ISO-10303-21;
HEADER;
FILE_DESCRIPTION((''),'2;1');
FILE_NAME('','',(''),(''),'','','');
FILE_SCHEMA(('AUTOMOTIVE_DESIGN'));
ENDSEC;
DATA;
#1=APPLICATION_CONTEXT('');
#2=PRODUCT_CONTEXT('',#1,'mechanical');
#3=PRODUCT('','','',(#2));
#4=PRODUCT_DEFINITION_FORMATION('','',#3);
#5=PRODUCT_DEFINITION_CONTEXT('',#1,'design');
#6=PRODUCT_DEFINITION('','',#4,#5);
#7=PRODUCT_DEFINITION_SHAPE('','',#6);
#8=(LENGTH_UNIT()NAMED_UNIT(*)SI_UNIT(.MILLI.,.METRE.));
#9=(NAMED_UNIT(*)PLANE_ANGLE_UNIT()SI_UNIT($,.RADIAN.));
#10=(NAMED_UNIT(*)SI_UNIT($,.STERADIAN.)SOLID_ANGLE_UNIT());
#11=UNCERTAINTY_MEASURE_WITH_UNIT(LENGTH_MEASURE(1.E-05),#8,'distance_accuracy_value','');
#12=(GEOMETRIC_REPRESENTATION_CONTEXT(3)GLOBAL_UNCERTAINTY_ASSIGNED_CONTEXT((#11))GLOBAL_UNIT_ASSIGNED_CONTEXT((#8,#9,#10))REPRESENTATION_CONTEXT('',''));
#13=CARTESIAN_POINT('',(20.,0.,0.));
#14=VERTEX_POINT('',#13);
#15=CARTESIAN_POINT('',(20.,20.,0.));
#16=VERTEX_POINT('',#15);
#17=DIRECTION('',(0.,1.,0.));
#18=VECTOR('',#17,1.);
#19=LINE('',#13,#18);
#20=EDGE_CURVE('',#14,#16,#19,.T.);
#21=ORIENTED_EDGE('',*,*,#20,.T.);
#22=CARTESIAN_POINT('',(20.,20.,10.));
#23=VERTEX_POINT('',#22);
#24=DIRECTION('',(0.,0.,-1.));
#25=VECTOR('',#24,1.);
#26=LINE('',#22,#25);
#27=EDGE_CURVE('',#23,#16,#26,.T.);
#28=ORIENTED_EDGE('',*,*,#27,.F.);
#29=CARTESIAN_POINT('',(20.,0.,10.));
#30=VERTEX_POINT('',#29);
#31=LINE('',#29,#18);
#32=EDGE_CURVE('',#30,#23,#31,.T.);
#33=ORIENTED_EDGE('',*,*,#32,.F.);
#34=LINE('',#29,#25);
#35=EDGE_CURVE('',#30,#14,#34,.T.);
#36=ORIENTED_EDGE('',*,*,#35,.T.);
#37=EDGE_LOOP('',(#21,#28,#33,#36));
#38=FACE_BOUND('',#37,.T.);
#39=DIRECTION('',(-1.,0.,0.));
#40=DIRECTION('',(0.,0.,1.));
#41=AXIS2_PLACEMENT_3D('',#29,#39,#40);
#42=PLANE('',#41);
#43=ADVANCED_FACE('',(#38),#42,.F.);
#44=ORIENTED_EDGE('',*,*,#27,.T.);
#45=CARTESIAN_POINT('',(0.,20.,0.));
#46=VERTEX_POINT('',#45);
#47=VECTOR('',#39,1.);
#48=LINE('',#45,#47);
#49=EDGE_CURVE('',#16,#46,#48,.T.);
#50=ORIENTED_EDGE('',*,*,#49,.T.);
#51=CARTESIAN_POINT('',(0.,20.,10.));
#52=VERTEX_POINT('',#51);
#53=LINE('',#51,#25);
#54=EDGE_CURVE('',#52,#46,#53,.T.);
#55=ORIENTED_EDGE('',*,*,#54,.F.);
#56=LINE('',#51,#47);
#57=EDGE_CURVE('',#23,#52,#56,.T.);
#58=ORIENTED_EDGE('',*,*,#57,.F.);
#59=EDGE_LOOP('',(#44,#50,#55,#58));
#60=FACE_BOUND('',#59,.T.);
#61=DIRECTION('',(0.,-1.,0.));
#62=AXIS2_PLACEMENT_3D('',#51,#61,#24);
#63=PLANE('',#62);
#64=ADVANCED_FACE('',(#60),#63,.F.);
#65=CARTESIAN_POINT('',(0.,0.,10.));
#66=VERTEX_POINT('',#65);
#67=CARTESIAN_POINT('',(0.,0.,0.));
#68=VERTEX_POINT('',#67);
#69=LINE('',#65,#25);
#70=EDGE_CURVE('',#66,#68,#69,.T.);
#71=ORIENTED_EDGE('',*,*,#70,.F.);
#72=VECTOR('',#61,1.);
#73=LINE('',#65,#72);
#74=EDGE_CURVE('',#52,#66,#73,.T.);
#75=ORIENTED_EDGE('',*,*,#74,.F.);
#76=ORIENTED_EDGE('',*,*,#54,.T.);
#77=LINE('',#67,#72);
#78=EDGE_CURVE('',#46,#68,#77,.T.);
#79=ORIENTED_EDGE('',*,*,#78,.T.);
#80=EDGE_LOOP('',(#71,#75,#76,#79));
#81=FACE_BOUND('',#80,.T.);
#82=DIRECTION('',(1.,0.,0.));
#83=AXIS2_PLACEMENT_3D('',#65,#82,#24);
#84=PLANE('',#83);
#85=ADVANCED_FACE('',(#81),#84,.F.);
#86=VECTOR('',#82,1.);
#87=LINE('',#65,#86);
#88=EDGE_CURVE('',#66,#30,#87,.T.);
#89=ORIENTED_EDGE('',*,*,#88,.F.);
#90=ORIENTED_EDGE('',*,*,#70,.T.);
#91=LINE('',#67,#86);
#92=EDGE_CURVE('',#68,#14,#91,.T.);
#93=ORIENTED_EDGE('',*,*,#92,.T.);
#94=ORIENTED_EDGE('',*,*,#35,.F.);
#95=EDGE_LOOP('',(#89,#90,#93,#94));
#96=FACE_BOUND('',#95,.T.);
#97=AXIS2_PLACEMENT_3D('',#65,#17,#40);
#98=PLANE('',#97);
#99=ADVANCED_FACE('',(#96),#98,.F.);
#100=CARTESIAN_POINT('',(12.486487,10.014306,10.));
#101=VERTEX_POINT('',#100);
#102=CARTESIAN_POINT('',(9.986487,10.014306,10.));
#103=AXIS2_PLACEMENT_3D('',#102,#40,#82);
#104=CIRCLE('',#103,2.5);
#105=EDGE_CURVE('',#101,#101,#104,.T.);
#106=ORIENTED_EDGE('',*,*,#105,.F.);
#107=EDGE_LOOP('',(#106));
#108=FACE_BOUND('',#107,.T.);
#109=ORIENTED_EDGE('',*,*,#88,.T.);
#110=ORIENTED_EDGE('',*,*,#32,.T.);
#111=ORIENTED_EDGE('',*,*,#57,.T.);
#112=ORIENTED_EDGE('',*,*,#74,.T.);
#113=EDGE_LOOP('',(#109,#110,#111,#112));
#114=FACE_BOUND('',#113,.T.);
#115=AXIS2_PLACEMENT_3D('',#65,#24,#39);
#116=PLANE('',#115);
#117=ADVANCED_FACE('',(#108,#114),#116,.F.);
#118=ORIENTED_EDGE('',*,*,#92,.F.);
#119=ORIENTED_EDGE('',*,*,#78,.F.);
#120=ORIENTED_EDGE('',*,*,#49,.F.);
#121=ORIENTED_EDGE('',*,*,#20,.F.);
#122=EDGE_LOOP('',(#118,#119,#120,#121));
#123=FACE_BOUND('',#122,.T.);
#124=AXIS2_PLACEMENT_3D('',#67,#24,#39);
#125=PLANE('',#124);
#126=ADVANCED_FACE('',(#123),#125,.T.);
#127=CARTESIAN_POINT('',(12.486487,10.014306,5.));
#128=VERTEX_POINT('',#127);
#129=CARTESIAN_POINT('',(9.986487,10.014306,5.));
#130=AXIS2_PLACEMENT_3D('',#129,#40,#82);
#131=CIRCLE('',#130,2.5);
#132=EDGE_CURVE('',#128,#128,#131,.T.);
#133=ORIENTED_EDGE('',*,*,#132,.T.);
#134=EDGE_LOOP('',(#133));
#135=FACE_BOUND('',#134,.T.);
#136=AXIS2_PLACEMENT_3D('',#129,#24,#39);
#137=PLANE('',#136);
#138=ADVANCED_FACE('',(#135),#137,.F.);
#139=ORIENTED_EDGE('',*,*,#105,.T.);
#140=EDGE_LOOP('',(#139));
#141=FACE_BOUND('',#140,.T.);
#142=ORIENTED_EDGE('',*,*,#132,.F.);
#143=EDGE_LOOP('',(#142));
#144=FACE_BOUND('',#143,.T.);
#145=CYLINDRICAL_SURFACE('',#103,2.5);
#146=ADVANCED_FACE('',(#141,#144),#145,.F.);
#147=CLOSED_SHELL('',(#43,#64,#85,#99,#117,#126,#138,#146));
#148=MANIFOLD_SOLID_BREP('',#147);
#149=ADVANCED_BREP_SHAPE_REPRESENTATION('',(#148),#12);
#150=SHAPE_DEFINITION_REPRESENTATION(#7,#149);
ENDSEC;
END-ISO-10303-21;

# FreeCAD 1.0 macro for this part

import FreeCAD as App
import Part
import Sketcher

V = App.Vector
Q = App.Units.Quantity

doc = App.newDocument("Part")
body = doc.addObject("PartDesign::Body", "Body")

# Sketch on XY plane
sketch1 = body.newObject("Sketcher::SketchObject", "Sketch")
sketch1.AttachmentSupport = (doc.getObject("XY_Plane"), [""])
sketch1.MapMode = "FlatFace"
sketch1.addGeometry([
    Part.LineSegment(V(0, 20, 0), V(0, 0, 0)),
    Part.LineSegment(V(0, 0, 0), V(20, 0, 0)),
    Part.LineSegment(V(20, 0, 0), V(20, 20, 0)),
    Part.LineSegment(V(20, 20, 0), V(0, 20, 0)),
], False)
sketch1.addConstraint([
    Sketcher.Constraint("Coincident", 0, 2, 1, 1),
    Sketcher.Constraint("Coincident", 1, 2, 2, 1),
    Sketcher.Constraint("Coincident", 2, 2, 3, 1),
    Sketcher.Constraint("Coincident", 3, 2, 0, 1),
    Sketcher.Constraint("Vertical", 0),
    Sketcher.Constraint("Horizontal", 1),
    Sketcher.Constraint("Vertical", 2),
    Sketcher.Constraint("Horizontal", 3),
    Sketcher.Constraint("Coincident", 0, 2, -1, 1),
    Sketcher.Constraint("Equal", 3, 0),
    Sketcher.Constraint("DistanceX", 1, 1, 1, 2, Q("20 mm")),
])
pad1 = body.newObject("PartDesign::Pad", "Pad")
pad1.Profile = sketch1
pad1.Length = 10

# Sketch on XY plane
sketch2 = body.newObject("Sketcher::SketchObject", "Sketch001")
sketch2.AttachmentSupport = (doc.getObject("XY_Plane"), [""])
sketch2.MapMode = "FlatFace"
sketch2.AttachmentOffset = App.Placement(V(0, 0, 10), App.Rotation())
sketch2.addGeometry(Part.Circle(V(10, 10, 0), V(0, 0, 1), 2.5), False)
sketch2.addConstraint([
    Sketcher.Constraint("Diameter", 0, Q("5 mm")),
    Sketcher.Constraint("DistanceX", -1, 1, 0, 3, Q("9.986487 mm")),
    Sketcher.Constraint("DistanceY", -1, 1, 0, 3, Q("10.014306 mm")),
])
doc.recompute()
hole = body.newObject("PartDesign::Hole", "Hole")
hole.Profile = sketch2
hole.ThreadType = "None"
hole.Diameter = 5
hole.DepthType = "Dimension"
hole.Depth = 5
hole.DrillPoint = "Flat"

doc.recompute()
